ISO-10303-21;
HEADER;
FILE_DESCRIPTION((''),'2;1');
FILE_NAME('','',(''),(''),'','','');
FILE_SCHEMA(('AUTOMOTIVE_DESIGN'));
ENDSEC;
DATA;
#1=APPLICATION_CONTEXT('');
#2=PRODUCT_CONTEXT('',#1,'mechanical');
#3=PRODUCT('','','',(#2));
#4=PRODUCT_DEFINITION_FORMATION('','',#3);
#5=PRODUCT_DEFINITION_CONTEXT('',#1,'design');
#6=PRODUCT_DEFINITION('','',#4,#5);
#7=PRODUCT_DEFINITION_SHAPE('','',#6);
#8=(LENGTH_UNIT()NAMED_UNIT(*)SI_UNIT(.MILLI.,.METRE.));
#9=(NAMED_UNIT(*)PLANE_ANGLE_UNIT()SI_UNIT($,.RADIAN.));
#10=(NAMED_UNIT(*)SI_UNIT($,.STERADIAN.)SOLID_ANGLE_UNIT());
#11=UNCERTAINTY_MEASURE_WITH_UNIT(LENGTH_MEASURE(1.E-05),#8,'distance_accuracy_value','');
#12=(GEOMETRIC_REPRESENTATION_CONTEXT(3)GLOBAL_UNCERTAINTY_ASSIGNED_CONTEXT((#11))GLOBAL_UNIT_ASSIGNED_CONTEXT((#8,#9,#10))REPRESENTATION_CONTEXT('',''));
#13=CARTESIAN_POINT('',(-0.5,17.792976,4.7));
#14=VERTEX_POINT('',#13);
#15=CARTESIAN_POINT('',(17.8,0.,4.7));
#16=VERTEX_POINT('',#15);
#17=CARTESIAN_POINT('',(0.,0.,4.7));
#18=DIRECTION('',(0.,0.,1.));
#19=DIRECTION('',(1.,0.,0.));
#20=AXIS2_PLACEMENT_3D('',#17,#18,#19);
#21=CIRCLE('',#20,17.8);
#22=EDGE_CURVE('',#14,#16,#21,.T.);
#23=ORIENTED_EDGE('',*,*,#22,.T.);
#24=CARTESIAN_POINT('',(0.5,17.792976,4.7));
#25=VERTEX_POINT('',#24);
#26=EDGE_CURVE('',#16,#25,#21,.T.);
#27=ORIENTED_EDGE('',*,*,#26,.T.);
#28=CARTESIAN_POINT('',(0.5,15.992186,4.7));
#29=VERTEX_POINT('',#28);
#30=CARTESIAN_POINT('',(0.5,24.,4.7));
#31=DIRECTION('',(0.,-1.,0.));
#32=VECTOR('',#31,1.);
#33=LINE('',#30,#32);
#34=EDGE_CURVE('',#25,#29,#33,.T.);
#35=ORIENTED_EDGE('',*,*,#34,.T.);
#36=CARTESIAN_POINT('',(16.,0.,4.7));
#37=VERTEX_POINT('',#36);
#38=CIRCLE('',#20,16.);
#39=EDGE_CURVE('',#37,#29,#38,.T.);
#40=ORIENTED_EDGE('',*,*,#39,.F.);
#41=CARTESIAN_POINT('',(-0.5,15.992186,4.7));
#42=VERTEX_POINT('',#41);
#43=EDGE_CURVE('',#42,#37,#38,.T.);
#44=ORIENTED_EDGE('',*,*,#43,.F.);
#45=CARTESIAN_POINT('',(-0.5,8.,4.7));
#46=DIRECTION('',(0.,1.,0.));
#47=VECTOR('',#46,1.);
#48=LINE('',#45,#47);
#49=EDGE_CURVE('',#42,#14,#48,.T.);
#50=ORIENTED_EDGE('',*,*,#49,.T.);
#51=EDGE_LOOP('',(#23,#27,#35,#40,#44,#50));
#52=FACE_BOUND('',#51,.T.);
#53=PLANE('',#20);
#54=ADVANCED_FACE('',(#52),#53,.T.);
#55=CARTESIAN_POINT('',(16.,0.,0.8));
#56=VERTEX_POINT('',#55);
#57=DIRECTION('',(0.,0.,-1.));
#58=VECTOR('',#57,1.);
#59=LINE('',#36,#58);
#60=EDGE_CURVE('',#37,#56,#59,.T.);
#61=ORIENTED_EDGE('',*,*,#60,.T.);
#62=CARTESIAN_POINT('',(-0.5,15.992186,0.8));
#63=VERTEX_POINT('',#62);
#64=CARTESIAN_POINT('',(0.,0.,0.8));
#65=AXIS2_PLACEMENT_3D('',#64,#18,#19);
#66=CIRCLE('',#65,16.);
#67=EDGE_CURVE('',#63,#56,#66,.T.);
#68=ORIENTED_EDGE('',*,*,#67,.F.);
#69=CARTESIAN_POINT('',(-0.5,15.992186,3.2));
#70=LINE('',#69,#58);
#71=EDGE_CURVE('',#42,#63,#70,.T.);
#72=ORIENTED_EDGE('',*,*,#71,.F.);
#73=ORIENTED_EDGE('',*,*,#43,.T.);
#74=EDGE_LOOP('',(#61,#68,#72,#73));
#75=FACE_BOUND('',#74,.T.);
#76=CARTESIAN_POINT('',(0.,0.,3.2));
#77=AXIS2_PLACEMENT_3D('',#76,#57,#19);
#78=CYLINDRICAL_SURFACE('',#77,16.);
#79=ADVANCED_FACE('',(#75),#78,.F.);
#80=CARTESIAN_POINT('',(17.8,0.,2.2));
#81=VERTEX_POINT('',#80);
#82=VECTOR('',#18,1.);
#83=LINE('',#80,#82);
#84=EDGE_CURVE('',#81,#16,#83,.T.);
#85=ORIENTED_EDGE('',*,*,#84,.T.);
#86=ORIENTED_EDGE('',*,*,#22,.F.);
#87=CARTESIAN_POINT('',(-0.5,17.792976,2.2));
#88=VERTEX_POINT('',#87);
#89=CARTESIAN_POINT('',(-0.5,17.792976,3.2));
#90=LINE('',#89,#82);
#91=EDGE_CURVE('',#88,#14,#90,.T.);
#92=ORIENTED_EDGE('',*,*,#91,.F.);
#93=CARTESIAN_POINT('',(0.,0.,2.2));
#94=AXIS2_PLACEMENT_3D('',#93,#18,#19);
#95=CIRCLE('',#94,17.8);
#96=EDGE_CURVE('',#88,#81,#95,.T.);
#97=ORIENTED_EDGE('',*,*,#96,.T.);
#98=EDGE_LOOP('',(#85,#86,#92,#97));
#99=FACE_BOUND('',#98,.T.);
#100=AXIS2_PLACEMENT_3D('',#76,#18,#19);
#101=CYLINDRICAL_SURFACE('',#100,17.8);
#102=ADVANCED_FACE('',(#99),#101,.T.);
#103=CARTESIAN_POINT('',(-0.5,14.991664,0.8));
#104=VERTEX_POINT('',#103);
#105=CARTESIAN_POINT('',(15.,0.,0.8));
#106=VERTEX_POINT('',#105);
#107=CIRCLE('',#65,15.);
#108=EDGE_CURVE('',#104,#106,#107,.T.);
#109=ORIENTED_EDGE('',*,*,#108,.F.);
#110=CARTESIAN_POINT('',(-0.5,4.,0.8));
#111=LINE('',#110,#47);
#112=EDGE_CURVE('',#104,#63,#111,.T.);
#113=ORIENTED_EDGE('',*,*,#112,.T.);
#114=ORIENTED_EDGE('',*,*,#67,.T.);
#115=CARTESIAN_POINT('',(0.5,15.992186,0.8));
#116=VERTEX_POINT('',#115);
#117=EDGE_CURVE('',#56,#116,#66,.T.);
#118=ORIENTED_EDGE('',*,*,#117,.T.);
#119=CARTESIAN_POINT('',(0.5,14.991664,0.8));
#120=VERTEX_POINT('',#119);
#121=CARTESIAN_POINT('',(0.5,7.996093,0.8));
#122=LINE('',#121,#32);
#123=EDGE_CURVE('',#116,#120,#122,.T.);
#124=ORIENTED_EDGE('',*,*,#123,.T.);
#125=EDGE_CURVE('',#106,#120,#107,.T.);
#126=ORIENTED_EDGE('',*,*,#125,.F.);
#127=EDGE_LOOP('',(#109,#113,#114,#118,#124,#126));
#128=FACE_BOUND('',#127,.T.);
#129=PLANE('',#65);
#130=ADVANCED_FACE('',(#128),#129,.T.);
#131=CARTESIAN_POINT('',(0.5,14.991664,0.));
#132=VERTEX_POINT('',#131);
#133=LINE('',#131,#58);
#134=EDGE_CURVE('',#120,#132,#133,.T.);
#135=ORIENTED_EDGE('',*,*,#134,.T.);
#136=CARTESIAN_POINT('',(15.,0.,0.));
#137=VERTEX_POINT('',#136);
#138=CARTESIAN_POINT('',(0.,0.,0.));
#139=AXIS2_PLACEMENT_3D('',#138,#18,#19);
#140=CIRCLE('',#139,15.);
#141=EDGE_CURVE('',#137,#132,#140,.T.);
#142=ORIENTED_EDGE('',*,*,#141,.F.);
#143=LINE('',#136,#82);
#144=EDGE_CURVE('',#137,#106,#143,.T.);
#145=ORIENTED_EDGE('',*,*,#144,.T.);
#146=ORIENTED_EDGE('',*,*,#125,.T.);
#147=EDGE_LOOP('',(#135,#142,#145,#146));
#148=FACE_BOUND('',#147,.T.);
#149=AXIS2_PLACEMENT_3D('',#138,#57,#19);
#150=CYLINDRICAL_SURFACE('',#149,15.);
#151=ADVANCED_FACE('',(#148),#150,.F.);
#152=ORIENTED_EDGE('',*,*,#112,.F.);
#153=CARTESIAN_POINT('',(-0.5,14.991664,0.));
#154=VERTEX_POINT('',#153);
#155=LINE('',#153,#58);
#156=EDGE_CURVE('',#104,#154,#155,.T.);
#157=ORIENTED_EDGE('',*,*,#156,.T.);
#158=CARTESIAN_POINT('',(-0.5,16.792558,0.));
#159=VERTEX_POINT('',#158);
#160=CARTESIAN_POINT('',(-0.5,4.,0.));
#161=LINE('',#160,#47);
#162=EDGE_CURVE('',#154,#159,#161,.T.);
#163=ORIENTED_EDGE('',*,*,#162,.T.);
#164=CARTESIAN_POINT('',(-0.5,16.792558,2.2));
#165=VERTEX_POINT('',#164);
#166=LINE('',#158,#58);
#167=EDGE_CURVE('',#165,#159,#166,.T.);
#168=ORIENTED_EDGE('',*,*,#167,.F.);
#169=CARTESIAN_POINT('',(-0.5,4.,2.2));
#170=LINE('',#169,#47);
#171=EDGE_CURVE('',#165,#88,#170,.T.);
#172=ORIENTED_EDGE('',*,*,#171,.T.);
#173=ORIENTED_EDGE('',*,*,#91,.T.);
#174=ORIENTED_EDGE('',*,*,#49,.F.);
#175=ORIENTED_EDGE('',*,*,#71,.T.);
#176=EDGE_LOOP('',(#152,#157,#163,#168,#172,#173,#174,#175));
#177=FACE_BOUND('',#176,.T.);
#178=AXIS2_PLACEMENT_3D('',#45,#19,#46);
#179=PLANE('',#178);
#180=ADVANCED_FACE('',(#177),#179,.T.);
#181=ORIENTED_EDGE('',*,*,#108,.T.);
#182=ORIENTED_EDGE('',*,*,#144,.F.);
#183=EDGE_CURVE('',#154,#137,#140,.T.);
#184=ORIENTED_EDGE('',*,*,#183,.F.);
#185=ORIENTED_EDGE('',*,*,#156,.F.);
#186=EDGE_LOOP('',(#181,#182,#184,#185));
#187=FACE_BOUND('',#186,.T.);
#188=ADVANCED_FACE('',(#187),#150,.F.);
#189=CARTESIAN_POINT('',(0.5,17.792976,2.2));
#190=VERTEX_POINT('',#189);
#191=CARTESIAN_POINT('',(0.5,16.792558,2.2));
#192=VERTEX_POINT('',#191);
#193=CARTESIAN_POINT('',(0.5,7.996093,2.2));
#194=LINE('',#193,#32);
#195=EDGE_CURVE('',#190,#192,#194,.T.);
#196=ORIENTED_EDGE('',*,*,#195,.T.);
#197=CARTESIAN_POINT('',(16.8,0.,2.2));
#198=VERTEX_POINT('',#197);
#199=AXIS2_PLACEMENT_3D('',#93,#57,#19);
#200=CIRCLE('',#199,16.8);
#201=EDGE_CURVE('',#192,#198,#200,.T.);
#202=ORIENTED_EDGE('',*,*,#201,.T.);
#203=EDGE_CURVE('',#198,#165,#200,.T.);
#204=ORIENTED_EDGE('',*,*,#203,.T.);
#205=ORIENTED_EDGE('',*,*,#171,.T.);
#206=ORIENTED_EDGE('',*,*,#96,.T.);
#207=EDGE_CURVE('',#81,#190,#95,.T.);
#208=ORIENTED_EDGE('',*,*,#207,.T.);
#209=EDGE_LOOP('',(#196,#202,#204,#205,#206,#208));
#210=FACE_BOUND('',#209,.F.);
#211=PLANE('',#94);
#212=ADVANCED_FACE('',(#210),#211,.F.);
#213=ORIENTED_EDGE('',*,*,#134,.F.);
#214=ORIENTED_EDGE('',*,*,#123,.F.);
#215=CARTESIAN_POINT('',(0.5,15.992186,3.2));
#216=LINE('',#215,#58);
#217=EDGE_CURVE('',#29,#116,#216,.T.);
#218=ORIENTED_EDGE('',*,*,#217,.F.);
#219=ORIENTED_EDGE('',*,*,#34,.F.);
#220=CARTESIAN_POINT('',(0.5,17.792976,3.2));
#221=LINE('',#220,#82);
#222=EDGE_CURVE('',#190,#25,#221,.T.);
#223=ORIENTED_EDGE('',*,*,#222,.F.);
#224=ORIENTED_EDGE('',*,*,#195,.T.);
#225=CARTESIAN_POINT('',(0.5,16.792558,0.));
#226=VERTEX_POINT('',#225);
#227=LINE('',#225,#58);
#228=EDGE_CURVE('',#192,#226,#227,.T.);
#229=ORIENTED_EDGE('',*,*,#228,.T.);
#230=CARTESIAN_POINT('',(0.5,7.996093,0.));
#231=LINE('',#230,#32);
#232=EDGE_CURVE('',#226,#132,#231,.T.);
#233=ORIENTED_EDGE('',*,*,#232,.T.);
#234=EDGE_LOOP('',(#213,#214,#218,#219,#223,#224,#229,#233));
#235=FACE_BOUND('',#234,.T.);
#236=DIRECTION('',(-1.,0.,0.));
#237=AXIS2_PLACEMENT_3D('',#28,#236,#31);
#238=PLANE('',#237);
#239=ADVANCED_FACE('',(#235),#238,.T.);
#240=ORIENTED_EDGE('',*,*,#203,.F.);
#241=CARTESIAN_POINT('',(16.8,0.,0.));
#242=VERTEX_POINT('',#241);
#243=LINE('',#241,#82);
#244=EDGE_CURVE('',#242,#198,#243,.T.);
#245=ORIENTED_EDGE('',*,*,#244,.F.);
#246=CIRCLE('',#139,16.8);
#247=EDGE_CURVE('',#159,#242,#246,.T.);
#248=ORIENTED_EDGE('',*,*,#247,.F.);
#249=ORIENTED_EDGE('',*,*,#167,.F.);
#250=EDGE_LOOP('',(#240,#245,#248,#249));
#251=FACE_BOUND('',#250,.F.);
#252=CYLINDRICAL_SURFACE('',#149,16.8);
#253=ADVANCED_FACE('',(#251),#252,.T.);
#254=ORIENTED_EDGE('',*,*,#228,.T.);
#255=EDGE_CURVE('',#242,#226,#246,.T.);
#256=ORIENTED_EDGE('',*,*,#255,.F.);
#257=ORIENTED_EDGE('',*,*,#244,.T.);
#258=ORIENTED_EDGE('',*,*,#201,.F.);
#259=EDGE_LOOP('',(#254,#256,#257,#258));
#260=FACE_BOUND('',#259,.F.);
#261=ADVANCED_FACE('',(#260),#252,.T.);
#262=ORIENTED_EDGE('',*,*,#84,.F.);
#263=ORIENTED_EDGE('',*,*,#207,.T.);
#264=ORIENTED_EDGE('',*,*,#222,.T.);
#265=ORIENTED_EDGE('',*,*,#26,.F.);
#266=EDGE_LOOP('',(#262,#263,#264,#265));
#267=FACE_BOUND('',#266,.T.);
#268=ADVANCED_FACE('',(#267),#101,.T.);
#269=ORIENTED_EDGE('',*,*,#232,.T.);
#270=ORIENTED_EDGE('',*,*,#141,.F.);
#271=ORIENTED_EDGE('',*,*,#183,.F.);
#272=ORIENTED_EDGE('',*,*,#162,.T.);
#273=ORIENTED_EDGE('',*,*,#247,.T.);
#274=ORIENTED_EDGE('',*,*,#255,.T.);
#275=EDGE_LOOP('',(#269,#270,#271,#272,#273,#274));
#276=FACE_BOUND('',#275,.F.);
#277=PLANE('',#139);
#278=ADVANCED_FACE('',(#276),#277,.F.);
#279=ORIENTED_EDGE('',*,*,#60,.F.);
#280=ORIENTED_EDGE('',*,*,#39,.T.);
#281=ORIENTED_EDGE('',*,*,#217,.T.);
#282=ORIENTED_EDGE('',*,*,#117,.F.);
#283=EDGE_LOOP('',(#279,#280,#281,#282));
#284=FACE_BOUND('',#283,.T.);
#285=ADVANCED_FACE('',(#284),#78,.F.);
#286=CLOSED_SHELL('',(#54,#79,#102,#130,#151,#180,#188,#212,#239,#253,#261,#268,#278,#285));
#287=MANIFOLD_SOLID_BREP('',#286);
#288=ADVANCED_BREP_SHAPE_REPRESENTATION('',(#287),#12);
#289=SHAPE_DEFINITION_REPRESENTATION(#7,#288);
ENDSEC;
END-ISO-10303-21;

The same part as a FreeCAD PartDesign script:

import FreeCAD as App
import Part
import Sketcher

V = App.Vector

doc = App.newDocument("Part")
body = doc.addObject("PartDesign::Body", "Body")

# Sketch on XY plane
sketch1 = body.newObject("Sketcher::SketchObject", "Sketch")
sketch1.AttachmentSupport = (doc.getObject("XY_Plane"), [""])
sketch1.MapMode = "FlatFace"
sketch1.addGeometry([
    Part.Circle(V(0, 0, 0), V(0, 0, 1), 16),
    Part.Circle(V(0, 0, 0), V(0, 0, 1), 15),
], False)
sketch1.addConstraint([
    Sketcher.Constraint("Coincident", 0, 3, -1, 1),
    Sketcher.Constraint("Coincident", 1, 3, -1, 1),
    Sketcher.Constraint("Diameter", 0, 32.0),
    Sketcher.Constraint("Diameter", 1, 30.0),
])
pad1 = body.newObject("PartDesign::Pad", "Pad")
pad1.Profile = sketch1
pad1.Length = 0.8

# Sketch on XY plane
sketch2 = body.newObject("Sketcher::SketchObject", "Sketch001")
sketch2.AttachmentSupport = (doc.getObject("XY_Plane"), [""])
sketch2.MapMode = "FlatFace"
sketch2.addGeometry([
    Part.Circle(V(0, 0, 0), V(0, 0, 1), 16.8),
    Part.Circle(V(0, 0, 0), V(0, 0, 1), 16),
], False)
sketch2.addConstraint([
    Sketcher.Constraint("Coincident", 0, 3, -1, 1),
    Sketcher.Constraint("Coincident", 1, 3, -1, 1),
    Sketcher.Constraint("Diameter", 1, 32.0),
    Sketcher.Constraint("Diameter", 0, 33.6),
])
pad2 = body.newObject("PartDesign::Pad", "Pad001")
pad2.Profile = sketch2
pad2.Length = 3.2

# Sketch on XY plane
sketch3 = body.newObject("Sketcher::SketchObject", "Sketch002")
sketch3.AttachmentSupport = (doc.getObject("XY_Plane"), [""])
sketch3.MapMode = "FlatFace"
sketch3.AttachmentOffset = App.Placement(V(0, 0, 3.2), App.Rotation())
sketch3.addGeometry([
    Part.Circle(V(0, 0, 0), V(0, 0, 1), 17.8),
    Part.Circle(V(0, 0, 0), V(0, 0, 1), 16),
], False)
sketch3.addConstraint([
    Sketcher.Constraint("Coincident", 0, 3, -1, 1),
    Sketcher.Constraint("Coincident", 1, 3, -1, 1),
    Sketcher.Constraint("Diameter", 1, 32.0),
    Sketcher.Constraint("Diameter", 0, 35.6),
])
pad3 = body.newObject("PartDesign::Pad", "Pad002")
pad3.Profile = sketch3
pad3.Length = 1.5

# Sketch on XY plane
sketch4 = body.newObject("Sketcher::SketchObject", "Sketch003")
sketch4.AttachmentSupport = (doc.getObject("XY_Plane"), [""])
sketch4.MapMode = "FlatFace"
sketch4.AttachmentOffset = App.Placement(V(0, 0, 3.2), App.Rotation())
sketch4.addGeometry([
    Part.Circle(V(0, 0, 0), V(0, 0, 1), 17.8),
    Part.Circle(V(0, 0, 0), V(0, 0, 1), 16),
], False)
sketch4.addConstraint([
    Sketcher.Constraint("Coincident", 0, 3, -1, 1),
    Sketcher.Constraint("Coincident", 1, 3, -1, 1),
    Sketcher.Constraint("Diameter", 1, 32.0),
    Sketcher.Constraint("Diameter", 0, 35.6),
])
pad4 = body.newObject("PartDesign::Pad", "Pad003")
pad4.Profile = sketch4
pad4.Length = 1
pad4.Reversed = True

# Sketch on XY plane
sketch5 = body.newObject("Sketcher::SketchObject", "Sketch004")
sketch5.AttachmentSupport = (doc.getObject("XY_Plane"), [""])
sketch5.MapMode = "FlatFace"
sketch5.AttachmentOffset = App.Placement(V(0, 0, 4.7), App.Rotation())
sketch5.addGeometry([
    Part.LineSegment(V(-0.5, 8, 0), V(0.5, 8, 0)),
    Part.LineSegment(V(0.5, 8, 0), V(0.5, 24, 0)),
    Part.LineSegment(V(0.5, 24, 0), V(-0.5, 24, 0)),
    Part.LineSegment(V(-0.5, 24, 0), V(-0.5, 8, 0)),
], False)
sketch5.addConstraint([
    Sketcher.Constraint("Coincident", 0, 2, 1, 1),
    Sketcher.Constraint("Coincident", 1, 2, 2, 1),
    Sketcher.Constraint("Coincident", 2, 2, 3, 1),
    Sketcher.Constraint("Coincident", 3, 2, 0, 1),
    Sketcher.Constraint("Horizontal", 0),
    Sketcher.Constraint("Vertical", 1),
    Sketcher.Constraint("Horizontal", 2),
    Sketcher.Constraint("Vertical", 3),
    Sketcher.Constraint("DistanceX", 0, 1, 0, 2, 1.0),
    Sketcher.Constraint("DistanceY", 1, 1, 1, 2, 16.0),
    Sketcher.Constraint("DistanceY", -1, 1, 0, 2, 8.0),
    Sketcher.Constraint("DistanceX", -1, 1, 0, 2, 0.5),
])
pocket1 = body.newObject("PartDesign::Pocket", "Pocket")
pocket1.Profile = sketch5
pocket1.Length = 10

doc.recompute()
